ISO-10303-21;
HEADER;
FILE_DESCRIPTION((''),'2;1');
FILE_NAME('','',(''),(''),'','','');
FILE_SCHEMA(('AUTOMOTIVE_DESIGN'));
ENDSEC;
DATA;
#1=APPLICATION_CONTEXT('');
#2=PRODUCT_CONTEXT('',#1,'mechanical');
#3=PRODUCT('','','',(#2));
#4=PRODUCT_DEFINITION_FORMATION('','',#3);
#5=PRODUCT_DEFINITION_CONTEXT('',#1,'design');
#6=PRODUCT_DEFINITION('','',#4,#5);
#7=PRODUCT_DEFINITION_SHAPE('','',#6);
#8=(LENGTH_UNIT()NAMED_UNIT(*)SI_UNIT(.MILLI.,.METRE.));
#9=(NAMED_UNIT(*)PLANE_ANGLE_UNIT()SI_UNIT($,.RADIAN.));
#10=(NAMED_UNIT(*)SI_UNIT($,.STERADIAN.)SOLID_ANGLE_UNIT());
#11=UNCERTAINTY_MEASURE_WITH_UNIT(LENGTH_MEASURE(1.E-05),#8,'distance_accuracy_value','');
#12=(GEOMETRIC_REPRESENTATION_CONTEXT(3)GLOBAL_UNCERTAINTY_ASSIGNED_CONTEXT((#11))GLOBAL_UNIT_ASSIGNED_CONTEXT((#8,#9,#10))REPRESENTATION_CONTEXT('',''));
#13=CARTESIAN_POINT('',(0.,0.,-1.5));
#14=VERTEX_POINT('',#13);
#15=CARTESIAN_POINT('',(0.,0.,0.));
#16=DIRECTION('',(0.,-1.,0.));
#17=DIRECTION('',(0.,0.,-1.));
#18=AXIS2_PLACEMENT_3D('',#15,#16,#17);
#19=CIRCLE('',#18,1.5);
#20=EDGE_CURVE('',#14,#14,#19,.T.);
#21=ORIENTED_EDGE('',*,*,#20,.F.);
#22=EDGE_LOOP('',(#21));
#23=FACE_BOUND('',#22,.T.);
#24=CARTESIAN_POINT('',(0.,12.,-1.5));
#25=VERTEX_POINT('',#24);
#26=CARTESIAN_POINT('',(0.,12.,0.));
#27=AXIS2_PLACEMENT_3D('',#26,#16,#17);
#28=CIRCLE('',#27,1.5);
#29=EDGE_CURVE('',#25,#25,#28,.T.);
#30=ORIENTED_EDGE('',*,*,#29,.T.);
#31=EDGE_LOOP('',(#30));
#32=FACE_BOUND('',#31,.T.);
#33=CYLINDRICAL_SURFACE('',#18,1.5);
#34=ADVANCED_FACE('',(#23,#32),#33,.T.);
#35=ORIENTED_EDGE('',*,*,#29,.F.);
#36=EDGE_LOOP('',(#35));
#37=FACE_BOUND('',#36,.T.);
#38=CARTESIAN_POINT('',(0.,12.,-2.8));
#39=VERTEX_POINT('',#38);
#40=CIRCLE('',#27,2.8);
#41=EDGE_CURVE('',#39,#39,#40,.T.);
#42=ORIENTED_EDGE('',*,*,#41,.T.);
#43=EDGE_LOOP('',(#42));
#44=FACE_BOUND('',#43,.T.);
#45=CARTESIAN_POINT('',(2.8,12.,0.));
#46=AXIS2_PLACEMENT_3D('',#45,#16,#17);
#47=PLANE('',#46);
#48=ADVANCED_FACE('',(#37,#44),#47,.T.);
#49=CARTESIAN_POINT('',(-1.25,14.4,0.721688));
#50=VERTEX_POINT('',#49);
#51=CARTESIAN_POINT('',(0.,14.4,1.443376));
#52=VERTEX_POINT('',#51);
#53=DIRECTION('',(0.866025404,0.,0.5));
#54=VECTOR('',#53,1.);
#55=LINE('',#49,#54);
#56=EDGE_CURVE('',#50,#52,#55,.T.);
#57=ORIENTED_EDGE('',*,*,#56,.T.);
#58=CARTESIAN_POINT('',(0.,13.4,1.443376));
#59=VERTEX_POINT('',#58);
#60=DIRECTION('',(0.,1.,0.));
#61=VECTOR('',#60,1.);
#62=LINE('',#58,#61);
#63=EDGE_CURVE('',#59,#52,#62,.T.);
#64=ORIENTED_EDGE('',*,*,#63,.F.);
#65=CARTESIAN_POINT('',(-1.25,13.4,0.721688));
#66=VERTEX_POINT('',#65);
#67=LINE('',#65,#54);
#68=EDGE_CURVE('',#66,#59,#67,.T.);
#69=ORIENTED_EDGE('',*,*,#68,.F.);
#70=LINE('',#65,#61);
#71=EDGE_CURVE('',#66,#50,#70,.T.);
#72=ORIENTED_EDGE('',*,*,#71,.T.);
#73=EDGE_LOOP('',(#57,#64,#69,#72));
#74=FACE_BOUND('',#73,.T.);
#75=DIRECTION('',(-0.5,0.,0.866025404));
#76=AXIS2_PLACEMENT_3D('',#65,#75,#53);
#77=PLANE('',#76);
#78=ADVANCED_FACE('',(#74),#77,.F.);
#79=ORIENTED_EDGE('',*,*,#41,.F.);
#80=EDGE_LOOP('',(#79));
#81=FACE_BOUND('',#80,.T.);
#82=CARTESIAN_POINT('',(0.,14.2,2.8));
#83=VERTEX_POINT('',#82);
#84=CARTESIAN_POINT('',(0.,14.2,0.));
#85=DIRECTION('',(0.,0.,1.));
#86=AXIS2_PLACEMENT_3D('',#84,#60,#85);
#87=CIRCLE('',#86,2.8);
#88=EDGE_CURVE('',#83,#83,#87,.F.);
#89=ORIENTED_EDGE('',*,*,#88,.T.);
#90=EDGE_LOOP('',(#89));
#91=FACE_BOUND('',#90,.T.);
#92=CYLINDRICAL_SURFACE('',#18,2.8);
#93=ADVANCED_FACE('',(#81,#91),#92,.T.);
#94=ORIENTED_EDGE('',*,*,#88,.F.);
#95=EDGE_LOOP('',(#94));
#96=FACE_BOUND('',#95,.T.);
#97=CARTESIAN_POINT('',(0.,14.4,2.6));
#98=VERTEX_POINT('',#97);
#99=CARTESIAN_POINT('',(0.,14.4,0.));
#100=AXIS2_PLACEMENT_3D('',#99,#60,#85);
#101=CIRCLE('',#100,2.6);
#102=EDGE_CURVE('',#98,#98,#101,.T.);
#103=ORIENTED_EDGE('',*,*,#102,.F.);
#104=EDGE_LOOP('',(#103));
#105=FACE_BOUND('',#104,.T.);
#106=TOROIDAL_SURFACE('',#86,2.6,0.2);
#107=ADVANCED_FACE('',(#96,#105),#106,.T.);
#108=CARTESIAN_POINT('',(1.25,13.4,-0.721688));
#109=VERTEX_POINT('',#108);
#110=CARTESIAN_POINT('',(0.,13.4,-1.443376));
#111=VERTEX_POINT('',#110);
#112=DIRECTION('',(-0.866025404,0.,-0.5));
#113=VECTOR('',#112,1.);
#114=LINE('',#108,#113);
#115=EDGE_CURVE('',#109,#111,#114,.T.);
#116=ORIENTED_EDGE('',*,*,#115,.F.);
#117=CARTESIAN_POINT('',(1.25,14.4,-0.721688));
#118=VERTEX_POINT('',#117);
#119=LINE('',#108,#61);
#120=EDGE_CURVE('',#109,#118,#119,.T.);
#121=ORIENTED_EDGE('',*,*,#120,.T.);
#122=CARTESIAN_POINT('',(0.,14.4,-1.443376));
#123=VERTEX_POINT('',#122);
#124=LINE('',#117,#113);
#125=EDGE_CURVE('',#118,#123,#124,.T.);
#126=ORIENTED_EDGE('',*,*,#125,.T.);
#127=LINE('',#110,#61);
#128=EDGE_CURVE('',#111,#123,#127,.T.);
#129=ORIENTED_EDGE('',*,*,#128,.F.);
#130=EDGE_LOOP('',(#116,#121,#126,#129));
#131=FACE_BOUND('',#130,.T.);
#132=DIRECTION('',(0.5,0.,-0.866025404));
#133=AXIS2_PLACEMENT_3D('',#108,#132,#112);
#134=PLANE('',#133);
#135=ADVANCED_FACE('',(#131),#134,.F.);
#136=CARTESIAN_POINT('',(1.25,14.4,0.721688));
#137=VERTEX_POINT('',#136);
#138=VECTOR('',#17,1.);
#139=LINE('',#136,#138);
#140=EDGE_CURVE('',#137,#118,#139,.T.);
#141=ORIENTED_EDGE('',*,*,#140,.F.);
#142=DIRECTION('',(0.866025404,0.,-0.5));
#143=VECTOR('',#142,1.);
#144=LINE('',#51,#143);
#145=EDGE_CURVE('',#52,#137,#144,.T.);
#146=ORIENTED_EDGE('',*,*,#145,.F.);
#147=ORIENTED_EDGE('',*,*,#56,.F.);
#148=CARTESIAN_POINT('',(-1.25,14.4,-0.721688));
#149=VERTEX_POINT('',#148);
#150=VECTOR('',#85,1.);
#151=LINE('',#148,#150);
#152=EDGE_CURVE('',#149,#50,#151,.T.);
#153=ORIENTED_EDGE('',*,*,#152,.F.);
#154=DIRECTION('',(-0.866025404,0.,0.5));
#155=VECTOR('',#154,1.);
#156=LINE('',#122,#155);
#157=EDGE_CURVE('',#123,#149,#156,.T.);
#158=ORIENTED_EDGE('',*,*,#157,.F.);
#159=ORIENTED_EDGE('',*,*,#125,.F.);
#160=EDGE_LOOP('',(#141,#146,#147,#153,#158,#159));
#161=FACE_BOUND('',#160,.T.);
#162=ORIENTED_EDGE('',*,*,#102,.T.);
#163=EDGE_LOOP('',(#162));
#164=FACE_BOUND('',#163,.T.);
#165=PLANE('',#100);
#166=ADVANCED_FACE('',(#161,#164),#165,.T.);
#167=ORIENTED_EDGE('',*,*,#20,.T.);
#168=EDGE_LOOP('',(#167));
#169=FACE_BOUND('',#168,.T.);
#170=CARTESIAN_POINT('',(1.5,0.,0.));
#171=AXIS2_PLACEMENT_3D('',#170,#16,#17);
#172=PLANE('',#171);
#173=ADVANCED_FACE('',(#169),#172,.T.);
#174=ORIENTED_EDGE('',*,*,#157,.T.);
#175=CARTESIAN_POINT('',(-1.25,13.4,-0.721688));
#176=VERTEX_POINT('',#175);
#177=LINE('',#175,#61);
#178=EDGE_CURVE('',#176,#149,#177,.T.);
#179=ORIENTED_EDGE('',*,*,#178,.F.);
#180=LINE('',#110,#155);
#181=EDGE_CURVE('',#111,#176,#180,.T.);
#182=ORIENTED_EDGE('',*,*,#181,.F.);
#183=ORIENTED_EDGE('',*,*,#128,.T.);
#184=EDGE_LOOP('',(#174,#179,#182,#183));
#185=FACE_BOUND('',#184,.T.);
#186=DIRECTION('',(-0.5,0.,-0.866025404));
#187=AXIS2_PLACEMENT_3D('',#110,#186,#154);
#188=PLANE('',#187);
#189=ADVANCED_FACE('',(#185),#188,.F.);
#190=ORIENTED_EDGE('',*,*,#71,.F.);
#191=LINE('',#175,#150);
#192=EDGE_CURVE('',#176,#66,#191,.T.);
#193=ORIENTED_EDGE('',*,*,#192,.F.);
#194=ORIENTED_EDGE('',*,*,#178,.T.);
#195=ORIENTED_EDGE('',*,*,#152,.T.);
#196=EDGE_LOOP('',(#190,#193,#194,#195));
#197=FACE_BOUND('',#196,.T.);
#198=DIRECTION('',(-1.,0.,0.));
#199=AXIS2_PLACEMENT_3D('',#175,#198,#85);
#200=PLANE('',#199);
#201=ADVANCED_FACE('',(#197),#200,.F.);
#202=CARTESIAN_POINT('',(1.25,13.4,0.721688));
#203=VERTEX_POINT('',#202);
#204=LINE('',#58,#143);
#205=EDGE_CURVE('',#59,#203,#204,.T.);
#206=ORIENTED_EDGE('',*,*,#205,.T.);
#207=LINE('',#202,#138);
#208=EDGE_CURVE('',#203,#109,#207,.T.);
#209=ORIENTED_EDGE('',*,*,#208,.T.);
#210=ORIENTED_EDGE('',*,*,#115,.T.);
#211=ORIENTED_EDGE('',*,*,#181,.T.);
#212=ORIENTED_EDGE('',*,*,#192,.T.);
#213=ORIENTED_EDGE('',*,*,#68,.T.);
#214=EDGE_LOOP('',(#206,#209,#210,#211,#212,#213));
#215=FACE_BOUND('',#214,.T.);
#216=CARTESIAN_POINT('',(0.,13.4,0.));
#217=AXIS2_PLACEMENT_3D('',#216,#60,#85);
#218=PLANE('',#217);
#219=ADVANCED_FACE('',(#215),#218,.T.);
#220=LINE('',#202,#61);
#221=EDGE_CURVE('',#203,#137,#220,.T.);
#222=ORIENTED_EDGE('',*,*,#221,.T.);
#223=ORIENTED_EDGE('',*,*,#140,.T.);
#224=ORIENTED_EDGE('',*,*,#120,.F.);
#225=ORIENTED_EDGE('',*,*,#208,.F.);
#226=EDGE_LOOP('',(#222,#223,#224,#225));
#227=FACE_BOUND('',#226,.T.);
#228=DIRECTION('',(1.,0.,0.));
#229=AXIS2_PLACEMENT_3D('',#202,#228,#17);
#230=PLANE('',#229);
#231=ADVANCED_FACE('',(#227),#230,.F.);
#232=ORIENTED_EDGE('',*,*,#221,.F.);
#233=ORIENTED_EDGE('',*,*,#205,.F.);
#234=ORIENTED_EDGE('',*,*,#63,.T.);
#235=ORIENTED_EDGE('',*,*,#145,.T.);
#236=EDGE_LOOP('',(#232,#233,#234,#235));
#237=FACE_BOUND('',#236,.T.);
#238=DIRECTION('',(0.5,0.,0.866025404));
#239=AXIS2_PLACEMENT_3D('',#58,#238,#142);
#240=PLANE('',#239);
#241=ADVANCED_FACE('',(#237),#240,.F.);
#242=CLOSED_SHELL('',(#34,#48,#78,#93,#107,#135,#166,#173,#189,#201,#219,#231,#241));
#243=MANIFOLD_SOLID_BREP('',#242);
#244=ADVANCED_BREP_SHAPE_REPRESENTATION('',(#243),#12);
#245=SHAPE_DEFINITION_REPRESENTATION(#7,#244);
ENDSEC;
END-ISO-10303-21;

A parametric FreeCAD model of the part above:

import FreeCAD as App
import Part
import Sketcher

V = App.Vector
Q = App.Units.Quantity


def edges_at(feature, points):
    """Names of the edges that pass closest to the given points."""
    edges = feature.Shape.Edges
    near = lambda p: min(range(len(edges)), key=lambda i: edges[i].distToShape(Part.Vertex(*p))[0])
    return sorted({f"Edge{near(p) + 1}" for p in points})


def add_polygon(sketch, points):
    """Adds a closed chain of lines whose ends are joined by coincident constraints."""
    first, n = sketch.GeometryCount, len(points)
    for a, b in zip(points, points[1:] + points[:1]):
        sketch.addGeometry(Part.LineSegment(App.Vector(*a, 0), App.Vector(*b, 0)), False)
    for i in range(n):
        sketch.addConstraint(Sketcher.Constraint("Coincident", first + i, 2, first + (i + 1) % n, 1))

doc = App.newDocument("Part")
body = doc.addObject("PartDesign::Body", "Body")

# Sketch on XY plane
sketch1 = body.newObject("Sketcher::SketchObject", "Sketch")
sketch1.AttachmentSupport = (doc.getObject("XY_Plane"), [""])
sketch1.MapMode = "FlatFace"
add_polygon(sketch1, [(0, 14.4), (0, 0), (1.5, 0), (1.5, 12), (2.8, 12), (2.8, 14.4)])  # lines 0-5
sketch1.addConstraint([
    Sketcher.Constraint("Vertical", 0),
    Sketcher.Constraint("Horizontal", 1),
    Sketcher.Constraint("Vertical", 2),
    Sketcher.Constraint("Horizontal", 3),
    Sketcher.Constraint("Vertical", 4),
    Sketcher.Constraint("Horizontal", 5),
    Sketcher.Constraint("Coincident", 0, 2, -1, 1),
    Sketcher.Constraint("DistanceY", 2, 1, 2, 2, Q("12 mm")),
    Sketcher.Constraint("DistanceX", 1, 1, 1, 2, Q("1.5 mm")),
    Sketcher.Constraint("DistanceX", 3, 1, 3, 2, Q("1.3 mm")),
    Sketcher.Constraint("DistanceY", 0, 2, 0, 1, Q("14.4 mm")),
])
revolution = body.newObject("PartDesign::Revolution", "Revolution")
revolution.Profile = sketch1
revolution.ReferenceAxis = (sketch1, ["V_Axis"])
revolution.Angle = 360

# Sketch on XZ plane
sketch2 = body.newObject("Sketcher::SketchObject", "Sketch001")
sketch2.AttachmentSupport = (doc.getObject("XZ_Plane"), [""])
sketch2.MapMode = "FlatFace"
sketch2.AttachmentOffset = App.Placement(V(0, 0, -14.4), App.Rotation())
add_polygon(sketch2, [(0, 1.443376), (1.25, 0.721688), (1.25, -0.721688), (0, -1.443376), (-1.25, -0.721688), (-1.25, 0.721688)])  # lines 0-5
sketch2.addConstraint([
    Sketcher.Constraint("Vertical", 1),
    Sketcher.Constraint("Vertical", 4),
    Sketcher.Constraint("Symmetric", 0, 2, 3, 2, -1, 1),
    Sketcher.Constraint("Symmetric", 2, 2, 5, 2, -1, 1),
    Sketcher.Constraint("PointOnObject", 2, 2, -2),
    Sketcher.Constraint("Parallel", 2, 5),
    Sketcher.Constraint("Horizontal", 1, 2, 3, 2),
    Sketcher.Constraint("Angle", 0, Q("-30 deg")),
    Sketcher.Constraint("DistanceX", 3, 2, 1, 2, Q("2.5 mm")),
    Sketcher.Constraint("DistanceY", 1, 2, 1, 1, Q("1.443376 mm")),
])
pocket1 = body.newObject("PartDesign::Pocket", "Pocket")
pocket1.Profile = sketch2
pocket1.Length = 1
pocket1.Reversed = True
doc.recompute()

fillet = body.newObject("PartDesign::Fillet", "Fillet")
fillet.Base = (pocket1, edges_at(pocket1, [(0, 14.4, 2.8)]))
fillet.Radius = 0.2

doc.recompute()
